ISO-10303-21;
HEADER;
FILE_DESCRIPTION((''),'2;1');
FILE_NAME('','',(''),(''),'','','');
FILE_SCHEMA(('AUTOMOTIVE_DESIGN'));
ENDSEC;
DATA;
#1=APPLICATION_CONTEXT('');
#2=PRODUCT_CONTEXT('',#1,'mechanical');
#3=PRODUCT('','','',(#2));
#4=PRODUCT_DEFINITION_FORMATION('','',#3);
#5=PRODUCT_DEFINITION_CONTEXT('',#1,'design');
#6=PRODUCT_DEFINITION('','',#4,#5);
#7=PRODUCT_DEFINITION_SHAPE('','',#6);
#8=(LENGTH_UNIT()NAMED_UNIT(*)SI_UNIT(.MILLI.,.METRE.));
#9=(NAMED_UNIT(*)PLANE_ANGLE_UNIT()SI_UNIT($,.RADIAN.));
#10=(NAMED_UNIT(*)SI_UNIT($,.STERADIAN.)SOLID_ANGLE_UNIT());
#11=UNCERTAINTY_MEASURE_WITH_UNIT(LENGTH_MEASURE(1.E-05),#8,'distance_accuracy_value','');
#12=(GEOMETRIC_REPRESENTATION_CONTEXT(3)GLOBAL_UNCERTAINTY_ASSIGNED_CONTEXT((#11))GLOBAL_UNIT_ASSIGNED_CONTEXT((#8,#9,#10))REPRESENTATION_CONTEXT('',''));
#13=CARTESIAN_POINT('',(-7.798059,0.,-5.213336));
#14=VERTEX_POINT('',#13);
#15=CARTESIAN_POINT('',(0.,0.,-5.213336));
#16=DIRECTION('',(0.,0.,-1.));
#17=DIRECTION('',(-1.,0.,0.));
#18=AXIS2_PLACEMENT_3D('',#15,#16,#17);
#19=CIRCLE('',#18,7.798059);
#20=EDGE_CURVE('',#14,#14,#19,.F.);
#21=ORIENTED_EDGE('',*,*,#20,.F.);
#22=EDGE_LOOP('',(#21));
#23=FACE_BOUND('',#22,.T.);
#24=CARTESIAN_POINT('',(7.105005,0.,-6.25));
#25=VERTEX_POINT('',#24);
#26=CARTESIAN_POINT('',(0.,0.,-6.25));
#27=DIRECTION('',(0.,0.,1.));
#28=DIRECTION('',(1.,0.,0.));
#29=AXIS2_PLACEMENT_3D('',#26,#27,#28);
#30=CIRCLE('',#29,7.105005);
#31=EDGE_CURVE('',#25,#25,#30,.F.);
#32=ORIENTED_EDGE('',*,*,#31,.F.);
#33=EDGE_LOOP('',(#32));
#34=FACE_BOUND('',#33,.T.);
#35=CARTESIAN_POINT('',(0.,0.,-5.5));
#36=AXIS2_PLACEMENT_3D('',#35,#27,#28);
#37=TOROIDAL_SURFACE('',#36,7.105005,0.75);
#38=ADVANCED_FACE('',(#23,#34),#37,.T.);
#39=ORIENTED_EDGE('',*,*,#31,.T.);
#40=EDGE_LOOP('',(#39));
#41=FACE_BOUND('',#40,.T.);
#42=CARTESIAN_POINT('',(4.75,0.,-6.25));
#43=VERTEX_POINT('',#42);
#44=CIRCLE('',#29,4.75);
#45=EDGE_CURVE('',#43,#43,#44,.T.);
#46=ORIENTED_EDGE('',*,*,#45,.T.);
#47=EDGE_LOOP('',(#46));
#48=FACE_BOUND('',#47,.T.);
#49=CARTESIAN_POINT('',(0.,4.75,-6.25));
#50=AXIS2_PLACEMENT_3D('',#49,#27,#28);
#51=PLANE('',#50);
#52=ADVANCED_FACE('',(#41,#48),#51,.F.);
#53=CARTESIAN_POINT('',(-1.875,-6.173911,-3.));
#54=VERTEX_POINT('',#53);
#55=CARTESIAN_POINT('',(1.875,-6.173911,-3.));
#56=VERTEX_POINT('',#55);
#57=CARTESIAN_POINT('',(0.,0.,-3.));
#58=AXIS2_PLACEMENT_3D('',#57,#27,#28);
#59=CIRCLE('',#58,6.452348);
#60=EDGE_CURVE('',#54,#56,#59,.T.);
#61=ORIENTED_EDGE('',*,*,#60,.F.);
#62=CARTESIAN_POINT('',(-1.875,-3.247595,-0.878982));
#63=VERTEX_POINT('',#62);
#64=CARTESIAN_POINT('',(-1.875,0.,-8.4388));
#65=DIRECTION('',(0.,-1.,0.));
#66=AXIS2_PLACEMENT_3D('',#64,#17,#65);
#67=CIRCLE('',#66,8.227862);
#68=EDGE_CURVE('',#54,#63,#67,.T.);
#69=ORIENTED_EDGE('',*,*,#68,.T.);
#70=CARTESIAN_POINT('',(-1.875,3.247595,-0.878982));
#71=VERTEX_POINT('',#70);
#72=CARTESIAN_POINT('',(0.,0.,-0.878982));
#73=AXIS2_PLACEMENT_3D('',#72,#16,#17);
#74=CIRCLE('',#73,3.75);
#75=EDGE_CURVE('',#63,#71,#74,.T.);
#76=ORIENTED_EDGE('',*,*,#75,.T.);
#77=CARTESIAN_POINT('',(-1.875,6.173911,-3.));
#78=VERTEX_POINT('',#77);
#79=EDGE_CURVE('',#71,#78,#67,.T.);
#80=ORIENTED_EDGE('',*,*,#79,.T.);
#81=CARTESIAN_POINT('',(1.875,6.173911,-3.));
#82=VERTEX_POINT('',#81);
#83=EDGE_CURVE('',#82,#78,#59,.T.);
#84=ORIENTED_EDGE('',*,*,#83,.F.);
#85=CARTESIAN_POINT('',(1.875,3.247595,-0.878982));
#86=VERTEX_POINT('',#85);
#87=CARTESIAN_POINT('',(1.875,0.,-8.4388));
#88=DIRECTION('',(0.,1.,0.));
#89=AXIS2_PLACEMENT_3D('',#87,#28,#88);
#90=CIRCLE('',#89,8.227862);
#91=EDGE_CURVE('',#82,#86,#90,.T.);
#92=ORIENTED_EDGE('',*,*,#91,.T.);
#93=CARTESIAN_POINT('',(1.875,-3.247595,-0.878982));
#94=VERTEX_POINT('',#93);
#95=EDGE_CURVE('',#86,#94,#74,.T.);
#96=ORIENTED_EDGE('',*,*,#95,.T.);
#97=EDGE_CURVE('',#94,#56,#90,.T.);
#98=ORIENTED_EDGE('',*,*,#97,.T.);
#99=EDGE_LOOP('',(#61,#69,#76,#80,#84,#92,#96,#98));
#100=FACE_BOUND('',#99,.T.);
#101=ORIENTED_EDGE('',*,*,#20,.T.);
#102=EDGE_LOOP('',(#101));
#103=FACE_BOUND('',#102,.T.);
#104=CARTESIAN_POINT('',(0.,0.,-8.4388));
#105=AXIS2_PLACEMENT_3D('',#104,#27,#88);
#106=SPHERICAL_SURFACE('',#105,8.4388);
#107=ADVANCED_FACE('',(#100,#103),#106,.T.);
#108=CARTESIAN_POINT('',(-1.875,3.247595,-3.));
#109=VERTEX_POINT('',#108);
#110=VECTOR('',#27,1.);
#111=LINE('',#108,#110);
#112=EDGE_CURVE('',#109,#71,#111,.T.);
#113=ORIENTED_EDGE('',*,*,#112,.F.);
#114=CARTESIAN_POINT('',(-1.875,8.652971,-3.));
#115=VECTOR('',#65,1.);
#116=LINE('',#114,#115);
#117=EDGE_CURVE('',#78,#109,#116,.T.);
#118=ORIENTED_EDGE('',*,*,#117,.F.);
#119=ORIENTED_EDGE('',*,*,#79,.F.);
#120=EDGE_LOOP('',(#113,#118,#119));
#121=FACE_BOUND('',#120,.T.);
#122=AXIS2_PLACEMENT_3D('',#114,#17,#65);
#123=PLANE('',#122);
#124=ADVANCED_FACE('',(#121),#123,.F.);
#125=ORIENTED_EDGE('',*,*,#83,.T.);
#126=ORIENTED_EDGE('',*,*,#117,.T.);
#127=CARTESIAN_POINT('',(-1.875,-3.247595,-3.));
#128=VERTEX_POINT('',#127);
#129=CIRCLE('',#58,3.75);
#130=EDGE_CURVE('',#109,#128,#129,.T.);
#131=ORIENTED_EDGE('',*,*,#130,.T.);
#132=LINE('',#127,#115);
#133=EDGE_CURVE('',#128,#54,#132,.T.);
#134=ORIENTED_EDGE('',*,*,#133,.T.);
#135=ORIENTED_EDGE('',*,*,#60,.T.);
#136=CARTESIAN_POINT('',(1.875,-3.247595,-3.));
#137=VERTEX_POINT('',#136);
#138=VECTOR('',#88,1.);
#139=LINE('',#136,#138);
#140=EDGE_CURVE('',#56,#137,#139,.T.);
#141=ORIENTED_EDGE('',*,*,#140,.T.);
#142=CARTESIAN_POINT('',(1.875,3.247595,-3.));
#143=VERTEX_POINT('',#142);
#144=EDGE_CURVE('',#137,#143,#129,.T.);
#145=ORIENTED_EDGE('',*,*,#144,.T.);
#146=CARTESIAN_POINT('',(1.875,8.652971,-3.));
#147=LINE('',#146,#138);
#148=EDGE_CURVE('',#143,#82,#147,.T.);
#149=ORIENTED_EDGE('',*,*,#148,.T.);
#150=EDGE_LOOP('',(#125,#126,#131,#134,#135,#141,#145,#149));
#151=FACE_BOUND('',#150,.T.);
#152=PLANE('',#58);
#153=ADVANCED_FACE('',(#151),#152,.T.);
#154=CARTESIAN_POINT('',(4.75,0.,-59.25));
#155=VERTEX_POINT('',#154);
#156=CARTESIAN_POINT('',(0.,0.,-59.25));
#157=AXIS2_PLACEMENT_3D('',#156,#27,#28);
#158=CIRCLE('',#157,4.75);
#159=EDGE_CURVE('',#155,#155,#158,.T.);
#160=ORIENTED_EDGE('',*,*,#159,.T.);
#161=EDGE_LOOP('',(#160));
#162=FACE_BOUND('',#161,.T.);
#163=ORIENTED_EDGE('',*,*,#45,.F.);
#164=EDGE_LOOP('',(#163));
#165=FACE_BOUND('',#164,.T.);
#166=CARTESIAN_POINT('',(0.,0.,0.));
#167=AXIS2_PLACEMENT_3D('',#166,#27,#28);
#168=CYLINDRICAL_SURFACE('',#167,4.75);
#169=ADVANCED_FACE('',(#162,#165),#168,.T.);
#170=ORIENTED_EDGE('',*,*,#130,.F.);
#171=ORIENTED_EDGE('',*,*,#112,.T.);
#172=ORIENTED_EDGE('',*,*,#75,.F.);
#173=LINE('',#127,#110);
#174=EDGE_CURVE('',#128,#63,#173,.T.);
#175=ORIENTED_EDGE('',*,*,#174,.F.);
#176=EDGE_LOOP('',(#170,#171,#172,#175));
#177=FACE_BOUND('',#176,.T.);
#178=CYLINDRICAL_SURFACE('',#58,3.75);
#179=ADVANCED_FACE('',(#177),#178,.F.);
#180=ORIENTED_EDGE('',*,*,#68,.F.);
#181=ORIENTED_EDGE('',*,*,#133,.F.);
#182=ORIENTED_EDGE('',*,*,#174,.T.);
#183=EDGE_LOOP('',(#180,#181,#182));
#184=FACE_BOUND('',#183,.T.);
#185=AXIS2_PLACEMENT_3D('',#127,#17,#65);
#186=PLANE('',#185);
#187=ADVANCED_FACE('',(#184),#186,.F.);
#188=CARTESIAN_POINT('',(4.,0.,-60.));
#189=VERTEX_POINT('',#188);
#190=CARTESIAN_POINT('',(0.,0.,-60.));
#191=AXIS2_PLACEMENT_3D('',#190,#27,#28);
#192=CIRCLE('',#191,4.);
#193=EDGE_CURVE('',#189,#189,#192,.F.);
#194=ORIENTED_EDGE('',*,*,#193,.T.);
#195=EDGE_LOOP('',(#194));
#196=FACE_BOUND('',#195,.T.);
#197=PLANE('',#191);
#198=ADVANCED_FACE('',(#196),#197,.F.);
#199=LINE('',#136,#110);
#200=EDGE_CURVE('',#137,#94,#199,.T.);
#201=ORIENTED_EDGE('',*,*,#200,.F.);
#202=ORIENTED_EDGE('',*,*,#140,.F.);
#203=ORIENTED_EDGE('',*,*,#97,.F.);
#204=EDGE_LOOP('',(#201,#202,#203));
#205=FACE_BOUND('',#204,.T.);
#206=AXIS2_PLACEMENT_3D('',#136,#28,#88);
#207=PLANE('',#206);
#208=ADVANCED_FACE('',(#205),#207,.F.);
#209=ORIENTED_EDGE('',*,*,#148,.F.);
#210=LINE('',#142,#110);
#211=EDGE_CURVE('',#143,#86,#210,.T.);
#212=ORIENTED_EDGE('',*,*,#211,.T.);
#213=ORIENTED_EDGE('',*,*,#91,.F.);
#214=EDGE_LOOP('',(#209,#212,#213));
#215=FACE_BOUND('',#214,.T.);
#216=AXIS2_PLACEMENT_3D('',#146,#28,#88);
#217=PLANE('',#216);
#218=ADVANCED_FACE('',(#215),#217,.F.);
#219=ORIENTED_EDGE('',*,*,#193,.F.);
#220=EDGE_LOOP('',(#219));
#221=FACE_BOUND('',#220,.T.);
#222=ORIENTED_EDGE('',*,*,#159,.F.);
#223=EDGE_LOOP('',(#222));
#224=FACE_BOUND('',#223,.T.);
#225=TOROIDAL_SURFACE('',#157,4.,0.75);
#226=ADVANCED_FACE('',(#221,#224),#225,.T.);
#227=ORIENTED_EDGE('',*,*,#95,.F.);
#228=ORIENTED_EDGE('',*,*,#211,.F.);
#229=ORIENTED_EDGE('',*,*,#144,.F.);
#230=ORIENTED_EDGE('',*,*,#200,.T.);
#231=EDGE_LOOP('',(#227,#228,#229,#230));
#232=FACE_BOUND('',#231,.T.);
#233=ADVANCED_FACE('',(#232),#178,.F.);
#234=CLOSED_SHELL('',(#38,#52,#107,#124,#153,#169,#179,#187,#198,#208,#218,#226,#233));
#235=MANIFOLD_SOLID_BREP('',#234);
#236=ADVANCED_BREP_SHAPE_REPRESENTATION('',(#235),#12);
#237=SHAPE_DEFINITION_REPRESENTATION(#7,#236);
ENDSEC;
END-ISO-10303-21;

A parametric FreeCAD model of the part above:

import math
import FreeCAD as App
import Part
import Sketcher
from FreeCAD import Vector
Q = App.Units.Quantity


def edges_at(feature, points):
    """Names of the edges that pass closest to the given points."""
    edges = feature.Shape.Edges
    near = lambda p: min(range(len(edges)), key=lambda i: edges[i].distToShape(Part.Vertex(*p))[0])
    return sorted({f"Edge{near(p) + 1}" for p in points})

doc = App.newDocument("Part")
params = doc.addObject("Spreadsheet::Sheet", "Params")
for row, (alias, value) in enumerate([
    ("sketch1_height", "60 mm"),
    ("sketch1_width", "3.4 mm"),
    ("sketch1_width2", "4.75 mm"),
    ("sketch1_height2", "53.75 mm"),
    ("revolution_angle", "360 deg"),
    ("fillet_radius", "0.75 mm"),
    ("sketch2_radius", "3.75 mm"),
    ("sketch2_width", "3.75 mm"),
    ("pocket1_length", "3 mm"),
], start=1):
    params.set(f"A{row}", alias)
    params.set(f"B{row}", "=" + value)
    params.setAlias(f"B{row}", alias)

body = doc.addObject("PartDesign::Body", "Body")

# Sketch on YZ plane
sketch1 = body.newObject("Sketcher::SketchObject", "Sketch")
sketch1.AttachmentSupport = (doc.getObject("YZ_Plane"), [""])
sketch1.MapMode = "FlatFace"
sketch1.addGeometry([
    Part.LineSegment(Vector(0, 0, 0), Vector(0, -60, 0)),  # 0
    Part.LineSegment(Vector(0, -60, 0), Vector(4.8, -60, 0)),  # 1
    Part.LineSegment(Vector(4.8, -60, 0), Vector(4.8, -6.2, 0)),  # 2
    Part.LineSegment(Vector(4.8, -6.2, 0), Vector(8.2, -6.2, 0)),  # 3
    Part.ArcOfCircle(Part.Circle(Vector(0, -8.4, 0), Vector(0, 0, 1), 8.4), math.radians(15), math.radians(90)),  # 4
], False)
sketch1.addConstraint([
    Sketcher.Constraint("Coincident", 0, 2, 1, 1),
    Sketcher.Constraint("Coincident", 1, 2, 2, 1),
    Sketcher.Constraint("Coincident", 2, 2, 3, 1),
    Sketcher.Constraint("Coincident", 3, 2, 4, 1),
    Sketcher.Constraint("Coincident", 4, 2, 0, 1),
    Sketcher.Constraint("Vertical", 0),
    Sketcher.Constraint("Horizontal", 1),
    Sketcher.Constraint("Vertical", 2),
    Sketcher.Constraint("Horizontal", 3),
    Sketcher.Constraint("Coincident", 4, 2, -1, 1),
    Sketcher.Constraint("PointOnObject", 4, 3, -2),
    Sketcher.Constraint("DistanceY", 0, 2, 0, 1, Q("60 mm")),
    Sketcher.Constraint("DistanceX", 3, 1, 3, 2, Q("3.4 mm")),
    Sketcher.Constraint("DistanceX", 1, 1, 1, 2, Q("4.75 mm")),
    Sketcher.Constraint("DistanceY", 2, 1, 2, 2, Q("53.75 mm")),
])
sketch1.setExpression("Constraints[11]", "Params.sketch1_height")
sketch1.setExpression("Constraints[12]", "Params.sketch1_width")
sketch1.setExpression("Constraints[13]", "Params.sketch1_width2")
sketch1.setExpression("Constraints[14]", "Params.sketch1_height2")
revolution = body.newObject("PartDesign::Revolution", "Revolution")
revolution.Profile = sketch1
revolution.ReferenceAxis = (sketch1, ["V_Axis"])
revolution.setExpression("Angle", "Params.revolution_angle")
doc.recompute()

fillet = body.newObject("PartDesign::Fillet", "Fillet")
fillet.Base = (revolution, edges_at(revolution, [(0, -8.15, -6.25), (0, -4.75, -60)]))
fillet.setExpression("Radius", "Params.fillet_radius")

# Sketch on XY plane
sketch2 = body.newObject("Sketcher::SketchObject", "Sketch001")
sketch2.AttachmentSupport = (doc.getObject("XY_Plane"), [""])
sketch2.MapMode = "FlatFace"
sketch2.addGeometry([
    Part.LineSegment(Vector(1.9, -8.7, 0), Vector(1.9, -3.2, 0)),  # 0
    Part.ArcOfCircle(Part.Circle(Vector(0, 0, 0), Vector(0, 0, 1), 3.8), math.radians(-60), math.radians(60)),  # 1
    Part.LineSegment(Vector(1.9, 3.2, 0), Vector(1.9, 8.7, 0)),  # 2
    Part.LineSegment(Vector(1.9, 8.7, 0), Vector(-1.9, 8.7, 0)),  # 3
    Part.LineSegment(Vector(-1.9, 8.7, 0), Vector(-1.9, 3.2, 0)),  # 4
    Part.ArcOfCircle(Part.Circle(Vector(0, 0, 0), Vector(0, 0, 1), 3.8), math.radians(120), math.radians(240)),  # 5
    Part.LineSegment(Vector(-1.9, -3.2, 0), Vector(-1.9, -8.7, 0)),  # 6
    Part.LineSegment(Vector(-1.9, -8.7, 0), Vector(1.9, -8.7, 0)),  # 7
], False)
sketch2.addConstraint([
    Sketcher.Constraint("Coincident", 0, 2, 1, 1),
    Sketcher.Constraint("Coincident", 1, 2, 2, 1),
    Sketcher.Constraint("Coincident", 2, 2, 3, 1),
    Sketcher.Constraint("Coincident", 3, 2, 4, 1),
    Sketcher.Constraint("Coincident", 4, 2, 5, 1),
    Sketcher.Constraint("Coincident", 5, 2, 6, 1),
    Sketcher.Constraint("Coincident", 6, 2, 7, 1),
    Sketcher.Constraint("Coincident", 7, 2, 0, 1),
    Sketcher.Constraint("Vertical", 0),
    Sketcher.Constraint("Vertical", 2),
    Sketcher.Constraint("Horizontal", 3),
    Sketcher.Constraint("Vertical", 4),
    Sketcher.Constraint("Vertical", 6),
    Sketcher.Constraint("Horizontal", 7),
    Sketcher.Constraint("Coincident", 1, 3, -1, 1),
    Sketcher.Constraint("Coincident", 5, 3, -1, 1),
    Sketcher.Constraint("Equal", 1, 5),
    Sketcher.Constraint("Symmetric", 2, 2, 6, 2, -1, 1),
    Sketcher.Constraint("Horizontal", 1, 2, 4, 2),
    Sketcher.Constraint("Horizontal", 0, 2, 5, 2),
    Sketcher.Constraint("Radius", 1, Q("3.75 mm")),
    Sketcher.Constraint("DistanceX", 3, 2, 3, 1, Q("3.75 mm")),
    Sketcher.Constraint("DistanceY", 0, 1, 0, 2, Q("5.405376 mm")),
])
sketch2.setExpression("Constraints[20]", "Params.sketch2_radius")
sketch2.setExpression("Constraints[21]", "Params.sketch2_width")
pocket1 = body.newObject("PartDesign::Pocket", "Pocket")
pocket1.Profile = sketch2
pocket1.setExpression("Length", "Params.pocket1_length")

doc.recompute()
